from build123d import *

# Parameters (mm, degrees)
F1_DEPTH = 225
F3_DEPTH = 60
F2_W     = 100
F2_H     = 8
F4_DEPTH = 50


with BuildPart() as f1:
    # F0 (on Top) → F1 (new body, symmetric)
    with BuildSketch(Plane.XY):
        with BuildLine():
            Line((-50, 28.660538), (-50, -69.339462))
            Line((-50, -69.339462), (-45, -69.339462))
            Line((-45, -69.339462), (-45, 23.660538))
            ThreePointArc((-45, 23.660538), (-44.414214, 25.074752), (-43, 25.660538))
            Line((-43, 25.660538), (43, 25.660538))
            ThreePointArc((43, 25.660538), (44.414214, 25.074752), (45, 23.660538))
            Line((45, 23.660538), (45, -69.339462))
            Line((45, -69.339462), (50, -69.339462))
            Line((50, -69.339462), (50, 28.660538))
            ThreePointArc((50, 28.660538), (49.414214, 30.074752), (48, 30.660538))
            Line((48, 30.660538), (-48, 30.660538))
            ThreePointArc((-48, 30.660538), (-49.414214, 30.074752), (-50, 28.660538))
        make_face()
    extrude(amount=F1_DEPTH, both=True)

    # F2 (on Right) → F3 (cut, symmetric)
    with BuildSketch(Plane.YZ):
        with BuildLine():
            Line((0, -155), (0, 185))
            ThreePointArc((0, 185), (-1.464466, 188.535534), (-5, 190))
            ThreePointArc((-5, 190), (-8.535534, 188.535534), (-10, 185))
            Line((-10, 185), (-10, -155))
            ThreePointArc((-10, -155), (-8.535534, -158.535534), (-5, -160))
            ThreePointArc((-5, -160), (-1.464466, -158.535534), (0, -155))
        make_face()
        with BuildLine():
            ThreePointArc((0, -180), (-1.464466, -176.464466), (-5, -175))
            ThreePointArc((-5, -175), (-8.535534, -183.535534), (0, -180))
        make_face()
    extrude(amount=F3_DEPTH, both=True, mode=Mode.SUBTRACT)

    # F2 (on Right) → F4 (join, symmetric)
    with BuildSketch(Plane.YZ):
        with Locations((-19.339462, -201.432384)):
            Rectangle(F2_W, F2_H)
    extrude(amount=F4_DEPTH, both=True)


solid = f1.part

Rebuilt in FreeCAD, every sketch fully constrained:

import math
import FreeCAD as App
import Part
import Sketcher
from FreeCAD import Vector


def add_polygon(sketch, points):
    """Adds a closed chain of lines whose ends are joined by coincident constraints."""
    first, n = sketch.GeometryCount, len(points)
    for a, b in zip(points, points[1:] + points[:1]):
        sketch.addGeometry(Part.LineSegment(App.Vector(*a, 0), App.Vector(*b, 0)), False)
    for i in range(n):
        sketch.addConstraint(Sketcher.Constraint("Coincident", first + i, 2, first + (i + 1) % n, 1))

doc = App.newDocument("Part")
params = doc.addObject("Spreadsheet::Sheet", "Params")
for row, (alias, value) in enumerate([
    ("sketch1_radius", "1.999999 mm"),
    ("sketch1_width", "5 mm"),
    ("sketch1_width2", "86 mm"),
    ("sketch1_height", "98 mm"),
    ("sketch1_height2", "93 mm"),
    ("pad1_length", "450 mm"),
    ("sketch2_radius", "5 mm"),
    ("sketch2_height", "340 mm"),
    ("pocket1_length", "120 mm"),
    ("sketch3_width", "100 mm"),
    ("sketch3_height", "8 mm"),
    ("pad2_length", "100 mm"),
], start=1):
    params.set(f"A{row}", alias)
    params.set(f"B{row}", "=" + value)
    params.setAlias(f"B{row}", alias)

body = doc.addObject("PartDesign::Body", "Body")

# Sketch on XY plane
sketch1 = body.newObject("Sketcher::SketchObject", "Sketch")
sketch1.AttachmentSupport = (doc.getObject("XY_Plane"), [""])
sketch1.MapMode = "FlatFace"
sketch1.addGeometry([
    Part.LineSegment(Vector(-50, 28.7, 0), Vector(-50, -69.3, 0)),  # 0
    Part.LineSegment(Vector(-50, -69.3, 0), Vector(-45, -69.3, 0)),  # 1
    Part.LineSegment(Vector(-45, -69.3, 0), Vector(-45, 23.7, 0)),  # 2
    Part.ArcOfCircle(Part.Circle(Vector(-43, 23.7, 0), Vector(0, 0, 1), 2), math.radians(90), math.radians(180)),  # 3
    Part.LineSegment(Vector(-43, 25.7, 0), Vector(43, 25.7, 0)),  # 4
    Part.ArcOfCircle(Part.Circle(Vector(43, 23.7, 0), Vector(0, 0, 1), 2), math.radians(0), math.radians(90)),  # 5
    Part.LineSegment(Vector(45, 23.7, 0), Vector(45, -69.3, 0)),  # 6
    Part.LineSegment(Vector(45, -69.3, 0), Vector(50, -69.3, 0)),  # 7
    Part.LineSegment(Vector(50, -69.3, 0), Vector(50, 28.7, 0)),  # 8
    Part.ArcOfCircle(Part.Circle(Vector(48, 28.7, 0), Vector(0, 0, 1), 2), math.radians(0), math.radians(90)),  # 9
    Part.LineSegment(Vector(48, 30.7, 0), Vector(-48, 30.7, 0)),  # 10
    Part.ArcOfCircle(Part.Circle(Vector(-48, 28.7, 0), Vector(0, 0, 1), 2), math.radians(90), math.radians(180)),  # 11
], False)
sketch1.addConstraint([
    Sketcher.Constraint("Coincident", 0, 2, 1, 1),
    Sketcher.Constraint("Coincident", 1, 2, 2, 1),
    Sketcher.Constraint("Tangent", 2, 2, 3, 2),
    Sketcher.Constraint("Tangent", 3, 1, 4, 1),
    Sketcher.Constraint("Tangent", 4, 2, 5, 2),
    Sketcher.Constraint("Tangent", 5, 1, 6, 1),
    Sketcher.Constraint("Coincident", 6, 2, 7, 1),
    Sketcher.Constraint("Coincident", 7, 2, 8, 1),
    Sketcher.Constraint("Tangent", 8, 2, 9, 1),
    Sketcher.Constraint("Tangent", 9, 2, 10, 1),
    Sketcher.Constraint("Tangent", 10, 2, 11, 1),
    Sketcher.Constraint("Tangent", 11, 2, 0, 1),
    Sketcher.Constraint("Vertical", 0),
    Sketcher.Constraint("Horizontal", 1),
    Sketcher.Constraint("Vertical", 2),
    Sketcher.Constraint("Horizontal", 4),
    Sketcher.Constraint("Vertical", 6),
    Sketcher.Constraint("Horizontal", 7),
    Sketcher.Constraint("Vertical", 8),
    Sketcher.Constraint("Horizontal", 10),
    Sketcher.Constraint("Equal", 3, 5),
    Sketcher.Constraint("Equal", 5, 9),
    Sketcher.Constraint("Equal", 9, 11),
    Sketcher.Constraint("Symmetric", 1, 2, 6, 2, -2),
    Sketcher.Constraint("Equal", 1, 7),
    Sketcher.Constraint("Radius", 3, 1.999999),
    Sketcher.Constraint("DistanceX", 1, 1, 1, 2, 5.0),
    Sketcher.Constraint("DistanceX", 4, 1, 4, 2, 86.0),
    Sketcher.Constraint("DistanceY", 0, 2, 0, 1, 98.0),
    Sketcher.Constraint("DistanceY", 2, 1, 2, 2, 93.0),
    Sketcher.Constraint("DistanceY", -1, 1, 3, 3, 23.660539),
])
sketch1.setExpression("Constraints[25]", "Params.sketch1_radius")
sketch1.setExpression("Constraints[26]", "Params.sketch1_width")
sketch1.setExpression("Constraints[27]", "Params.sketch1_width2")
sketch1.setExpression("Constraints[28]", "Params.sketch1_height")
sketch1.setExpression("Constraints[29]", "Params.sketch1_height2")
pad1 = body.newObject("PartDesign::Pad", "Pad")
pad1.Profile = sketch1
pad1.setExpression("Length", "Params.pad1_length")
pad1.Midplane = True

# Sketch on YZ plane
sketch2 = body.newObject("Sketcher::SketchObject", "Sketch001")
sketch2.AttachmentSupport = (doc.getObject("YZ_Plane"), [""])
sketch2.MapMode = "FlatFace"
sketch2.addGeometry([
    Part.LineSegment(Vector(0, -155, 0), Vector(0, 185, 0)),  # 0
    Part.ArcOfCircle(Part.Circle(Vector(-5, 185, 0), Vector(0, 0, 1), 5), math.radians(0), math.radians(90)),  # 1
    Part.ArcOfCircle(Part.Circle(Vector(-5, 185, 0), Vector(0, 0, 1), 5), math.radians(90), math.radians(180)),  # 2
    Part.LineSegment(Vector(-10, 185, 0), Vector(-10, -155, 0)),  # 3
    Part.ArcOfCircle(Part.Circle(Vector(-5, -155, 0), Vector(0, 0, 1), 5), math.radians(180), math.radians(270)),  # 4
    Part.ArcOfCircle(Part.Circle(Vector(-5, -155, 0), Vector(0, 0, 1), 5), math.radians(-90), math.radians(0)),  # 5
    Part.ArcOfCircle(Part.Circle(Vector(-5, -180, 0), Vector(0, 0, 1), 5), math.radians(0), math.radians(90)),  # 6
    Part.ArcOfCircle(Part.Circle(Vector(-5, -180, 0), Vector(0, 0, 1), 5), math.radians(90), math.radians(360)),  # 7
], False)
sketch2.addConstraint([
    Sketcher.Constraint("Tangent", 0, 2, 1, 1),
    Sketcher.Constraint("Tangent", 1, 2, 2, 1),
    Sketcher.Constraint("Tangent", 2, 2, 3, 1),
    Sketcher.Constraint("Tangent", 3, 2, 4, 1),
    Sketcher.Constraint("Tangent", 4, 2, 5, 1),
    Sketcher.Constraint("Tangent", 5, 2, 0, 1),
    Sketcher.Constraint("Tangent", 6, 1, 7, 2),
    Sketcher.Constraint("Coincident", 7, 1, 6, 2),
    Sketcher.Constraint("Vertical", 0),
    Sketcher.Constraint("Vertical", 3),
    Sketcher.Constraint("Equal", 1, 2),
    Sketcher.Constraint("Equal", 2, 4),
    Sketcher.Constraint("Equal", 5, 6),
    Sketcher.Constraint("PointOnObject", 0, 2, -2),
    Sketcher.Constraint("PointOnObject", 6, 1, -2),
    Sketcher.Constraint("Horizontal", 7, 3, 6, 1),
    Sketcher.Constraint("Vertical", 7, 3, 1, 2),
    Sketcher.Constraint("Vertical", 1, 2, 4, 2),
    Sketcher.Constraint("Vertical", 4, 2, 7, 1),
    Sketcher.Constraint("Radius", 1, 5.0),
    Sketcher.Constraint("DistanceY", 0, 1, 0, 2, 340.0),
    Sketcher.Constraint("DistanceY", -1, 1, 1, 3, 185.0),
    Sketcher.Constraint("DistanceY", 6, 3, -1, 1, 180.0),
])
sketch2.setExpression("Constraints[19]", "Params.sketch2_radius")
sketch2.setExpression("Constraints[20]", "Params.sketch2_height")
pocket1 = body.newObject("PartDesign::Pocket", "Pocket")
pocket1.Profile = sketch2
pocket1.setExpression("Length", "Params.pocket1_length")
pocket1.Midplane = True

# Sketch on YZ plane
sketch3 = body.newObject("Sketcher::SketchObject", "Sketch002")
sketch3.AttachmentSupport = (doc.getObject("YZ_Plane"), [""])
sketch3.MapMode = "FlatFace"
add_polygon(sketch3, [(-69, -197), (-69, -205), (31, -205), (31, -197)])  # lines 0-3
sketch3.addConstraint([
    Sketcher.Constraint("Vertical", 0),
    Sketcher.Constraint("Horizontal", 1),
    Sketcher.Constraint("Vertical", 2),
    Sketcher.Constraint("Horizontal", 3),
    Sketcher.Constraint("DistanceX", 1, 1, 1, 2, 100.0),
    Sketcher.Constraint("DistanceY", 0, 2, 0, 1, 8.0),
    Sketcher.Constraint("DistanceX", 0, 2, -1, 1, 69.339462),
    Sketcher.Constraint("DistanceY", 0, 2, -1, 1, 205.432384),
])
sketch3.setExpression("Constraints[8]", "Params.sketch3_width")
sketch3.setExpression("Constraints[9]", "Params.sketch3_height")
pad2 = body.newObject("PartDesign::Pad", "Pad001")
pad2.Profile = sketch3
pad2.setExpression("Length", "Params.pad2_length")
pad2.Midplane = True

doc.recompute()
